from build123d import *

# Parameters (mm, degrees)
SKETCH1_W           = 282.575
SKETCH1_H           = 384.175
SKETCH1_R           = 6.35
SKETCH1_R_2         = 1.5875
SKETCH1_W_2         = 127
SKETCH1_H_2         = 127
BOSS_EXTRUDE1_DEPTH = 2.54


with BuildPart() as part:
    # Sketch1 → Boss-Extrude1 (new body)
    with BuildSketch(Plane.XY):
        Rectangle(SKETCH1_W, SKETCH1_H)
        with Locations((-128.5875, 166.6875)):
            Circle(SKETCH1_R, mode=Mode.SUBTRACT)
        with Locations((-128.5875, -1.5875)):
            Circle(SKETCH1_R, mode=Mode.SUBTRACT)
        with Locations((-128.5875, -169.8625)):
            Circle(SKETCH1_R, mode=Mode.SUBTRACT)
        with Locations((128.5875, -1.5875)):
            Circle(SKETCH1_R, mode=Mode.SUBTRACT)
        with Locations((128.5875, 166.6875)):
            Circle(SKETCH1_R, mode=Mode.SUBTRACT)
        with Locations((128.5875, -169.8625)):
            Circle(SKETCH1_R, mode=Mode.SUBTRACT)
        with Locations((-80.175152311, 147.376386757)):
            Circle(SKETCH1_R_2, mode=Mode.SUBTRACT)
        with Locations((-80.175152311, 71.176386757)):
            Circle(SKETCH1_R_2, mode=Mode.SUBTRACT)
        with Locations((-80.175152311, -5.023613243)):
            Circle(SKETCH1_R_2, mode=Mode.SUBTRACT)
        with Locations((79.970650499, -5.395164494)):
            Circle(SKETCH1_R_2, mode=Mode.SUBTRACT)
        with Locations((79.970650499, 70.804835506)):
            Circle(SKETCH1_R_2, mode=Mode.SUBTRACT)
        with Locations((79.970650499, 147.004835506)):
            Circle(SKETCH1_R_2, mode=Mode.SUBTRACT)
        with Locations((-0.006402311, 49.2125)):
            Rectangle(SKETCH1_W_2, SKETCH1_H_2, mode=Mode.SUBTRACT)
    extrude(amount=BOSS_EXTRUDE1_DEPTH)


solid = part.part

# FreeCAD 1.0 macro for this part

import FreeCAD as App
import Part
import Sketcher

V = App.Vector
Q = App.Units.Quantity

doc = App.newDocument("Part")
body = doc.addObject("PartDesign::Body", "Body")

# Sketch on XY plane
sketch1 = doc.addObject("Sketcher::SketchObject", "Sketch")
body.addObject(sketch1)
sketch1.AttachmentSupport = (doc.XY_Plane, [""])
sketch1.MapMode = "FlatFace"
sketch1.addGeometry([
    Part.LineSegment(V(-141.3, 192.1, 0), V(-141.3, -192.1, 0)),  # 0
    Part.LineSegment(V(-141.3, -192.1, 0), V(141.3, -192.1, 0)),  # 1
    Part.LineSegment(V(141.3, -192.1, 0), V(141.3, 192.1, 0)),  # 2
    Part.LineSegment(V(141.3, 192.1, 0), V(-141.3, 192.1, 0)),  # 3
    Part.Circle(V(-128.6, -169.9, 0), V(0, 0, 1), 6.3),  # 4
    Part.Circle(V(-80.2, -5, 0), V(0, 0, 1), 1.6),  # 5
    Part.Circle(V(128.6, -169.9, 0), V(0, 0, 1), 6.3),  # 6
    Part.Circle(V(80, -5.4, 0), V(0, 0, 1), 1.6),  # 7
    Part.Circle(V(-128.6, -1.6, 0), V(0, 0, 1), 6.3),  # 8
    Part.Circle(V(-80.2, 71.2, 0), V(0, 0, 1), 1.6),  # 9
    Part.LineSegment(V(63.5, -14.3, 0), V(-63.5, -14.3, 0)),  # 10
    Part.LineSegment(V(-63.5, -14.3, 0), V(-63.5, 112.7, 0)),  # 11
    Part.LineSegment(V(-63.5, 112.7, 0), V(63.5, 112.7, 0)),  # 12
    Part.LineSegment(V(63.5, 112.7, 0), V(63.5, -14.3, 0)),  # 13
    Part.Circle(V(-128.6, 166.7, 0), V(0, 0, 1), 6.3),  # 14
    Part.Circle(V(-80.2, 147.4, 0), V(0, 0, 1), 1.6),  # 15
    Part.Circle(V(128.6, -1.6, 0), V(0, 0, 1), 6.3),  # 16
    Part.Circle(V(80, 70.8, 0), V(0, 0, 1), 1.6),  # 17
    Part.Circle(V(80, 147, 0), V(0, 0, 1), 1.6),  # 18
    Part.Circle(V(128.6, 166.7, 0), V(0, 0, 1), 6.3),  # 19
], False)
sketch1.addConstraint([
    Sketcher.Constraint("Coincident", 0, 2, 1, 1),
    Sketcher.Constraint("Coincident", 1, 2, 2, 1),
    Sketcher.Constraint("Coincident", 2, 2, 3, 1),
    Sketcher.Constraint("Coincident", 3, 2, 0, 1),
    Sketcher.Constraint("Coincident", 10, 2, 11, 1),
    Sketcher.Constraint("Coincident", 11, 2, 12, 1),
    Sketcher.Constraint("Coincident", 12, 2, 13, 1),
    Sketcher.Constraint("Coincident", 13, 2, 10, 1),
    Sketcher.Constraint("Vertical", 0),
    Sketcher.Constraint("Horizontal", 1),
    Sketcher.Constraint("Vertical", 2),
    Sketcher.Constraint("Horizontal", 3),
    Sketcher.Constraint("Horizontal", 10),
    Sketcher.Constraint("Vertical", 11),
    Sketcher.Constraint("Horizontal", 12),
    Sketcher.Constraint("Vertical", 13),
    Sketcher.Constraint("Equal", 4, 6),
    Sketcher.Constraint("Equal", 5, 7),
    Sketcher.Constraint("Equal", 6, 8),
    Sketcher.Constraint("Equal", 7, 9),
    Sketcher.Constraint("Equal", 8, 14),
    Sketcher.Constraint("Equal", 9, 15),
    Sketcher.Constraint("Equal", 14, 16),
    Sketcher.Constraint("Equal", 15, 17),
    Sketcher.Constraint("Equal", 17, 18),
    Sketcher.Constraint("Equal", 16, 19),
    Sketcher.Constraint("Symmetric", 0, 2, 2, 2, -1, 1),
    Sketcher.Constraint("Symmetric", 4, 3, 6, 3, -2),
    Sketcher.Constraint("Symmetric", 8, 3, 16, 3, -2),
    Sketcher.Constraint("Symmetric", 14, 3, 19, 3, -2),
    Sketcher.Constraint("Vertical", 4, 3, 8, 3),
    Sketcher.Constraint("Vertical", 5, 3, 9, 3),
    Sketcher.Constraint("Vertical", 8, 3, 14, 3),
    Sketcher.Constraint("Vertical", 9, 3, 15, 3),
    Sketcher.Constraint("Vertical", 7, 3, 17, 3),
    Sketcher.Constraint("Vertical", 17, 3, 18, 3),
    Sketcher.Constraint("Equal", 12, 11),
    Sketcher.Constraint("Diameter", 4, Q("0.5 in")),
    Sketcher.Constraint("DistanceX", 10, 2, 10, 1, Q("5 in")),
    Sketcher.Constraint("Diameter", 5, Q("0.125 in")),
    Sketcher.Constraint("DistanceY", 5, 3, 9, 3, Q("3 in")),
    Sketcher.Constraint("DistanceY", 9, 3, 15, 3, Q("3 in")),
    Sketcher.Constraint("DistanceY", 7, 3, 17, 3, Q("3 in")),
    Sketcher.Constraint("DistanceY", 17, 3, 18, 3, Q("3 in")),
    Sketcher.Constraint("DistanceY", 19, 3, 2, 2, Q("1 in")),
    Sketcher.Constraint("DistanceX", 0, 2, 4, 3, Q("0.5 in")),
    Sketcher.Constraint("DistanceY", 0, 2, 8, 3, Q("7.5 in")),
    Sketcher.Constraint("DistanceY", 10, 2, 8, 3, Q("0.5 in")),
    Sketcher.Constraint("DistanceX", 1, 1, 1, 2, Q("11.125 in")),
    Sketcher.Constraint("DistanceY", 0, 2, 0, 1, Q("15.125 in")),
    Sketcher.Constraint("DistanceY", 4, 3, 14, 3, Q("13.25 in")),
    Sketcher.Constraint("DistanceX", 5, 3, 10, 2, Q("0.65625 in")),
    Sketcher.Constraint("DistanceX", -1, 1, 7, 3, Q("79.97065 mm")),
    Sketcher.Constraint("DistanceY", 7, 3, 5, 3, Q("0.371551 mm")),
    Sketcher.Constraint("DistanceX", 5, 3, -1, 1, Q("80.175152 mm")),
    Sketcher.Constraint("DistanceY", 5, 3, -1, 1, Q("5.023613 mm")),
])
pad1 = doc.addObject("PartDesign::Pad", "Pad")
body.addObject(pad1)
pad1.Profile = sketch1
pad1.Length = Q("0.1 in")

doc.recompute()
